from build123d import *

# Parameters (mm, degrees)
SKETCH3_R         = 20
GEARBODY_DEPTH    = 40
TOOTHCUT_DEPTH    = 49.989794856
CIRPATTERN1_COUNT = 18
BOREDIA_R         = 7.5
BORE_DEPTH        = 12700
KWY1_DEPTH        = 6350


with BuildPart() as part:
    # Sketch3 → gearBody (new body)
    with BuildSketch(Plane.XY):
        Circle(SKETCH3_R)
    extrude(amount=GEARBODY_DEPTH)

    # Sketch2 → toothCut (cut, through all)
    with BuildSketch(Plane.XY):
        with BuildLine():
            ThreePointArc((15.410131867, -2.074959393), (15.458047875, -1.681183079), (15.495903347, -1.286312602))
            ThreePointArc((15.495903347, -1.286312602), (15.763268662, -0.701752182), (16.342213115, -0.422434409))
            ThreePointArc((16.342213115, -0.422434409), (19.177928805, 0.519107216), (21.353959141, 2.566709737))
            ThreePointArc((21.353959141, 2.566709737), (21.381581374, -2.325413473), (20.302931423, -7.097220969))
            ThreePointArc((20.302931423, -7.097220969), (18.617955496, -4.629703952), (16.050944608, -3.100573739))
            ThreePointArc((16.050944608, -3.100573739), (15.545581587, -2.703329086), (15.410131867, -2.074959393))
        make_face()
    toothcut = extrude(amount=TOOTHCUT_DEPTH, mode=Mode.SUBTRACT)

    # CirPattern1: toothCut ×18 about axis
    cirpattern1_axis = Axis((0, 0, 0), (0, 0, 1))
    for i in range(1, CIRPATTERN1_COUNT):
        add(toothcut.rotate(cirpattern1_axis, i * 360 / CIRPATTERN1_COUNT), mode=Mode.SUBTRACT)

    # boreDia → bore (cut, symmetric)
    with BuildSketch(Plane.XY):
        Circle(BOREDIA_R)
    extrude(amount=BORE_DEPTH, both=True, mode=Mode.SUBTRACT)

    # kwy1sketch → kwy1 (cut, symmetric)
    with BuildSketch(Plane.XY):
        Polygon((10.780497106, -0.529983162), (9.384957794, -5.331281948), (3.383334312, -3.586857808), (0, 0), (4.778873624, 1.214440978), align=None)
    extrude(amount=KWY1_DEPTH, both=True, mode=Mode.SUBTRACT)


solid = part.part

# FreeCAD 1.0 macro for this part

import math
import FreeCAD as App
import Part
import Sketcher
from FreeCAD import Vector
Q = App.Units.Quantity


def add_polygon(sketch, points):
    """Adds a closed chain of lines whose ends are joined by coincident constraints."""
    first, n = sketch.GeometryCount, len(points)
    for a, b in zip(points, points[1:] + points[:1]):
        sketch.addGeometry(Part.LineSegment(App.Vector(*a, 0), App.Vector(*b, 0)), False)
    for i in range(n):
        sketch.addConstraint(Sketcher.Constraint("Coincident", first + i, 2, first + (i + 1) % n, 1))

doc = App.newDocument("Part")
body = doc.addObject("PartDesign::Body", "Body")

# Sketch on XY plane
sketch1 = body.newObject("Sketcher::SketchObject", "Sketch")
sketch1.AttachmentSupport = (doc.getObject("XY_Plane"), [""])
sketch1.MapMode = "FlatFace"
sketch1.addGeometry(Part.Circle(Vector(0, 0, 0), Vector(0, 0, 1), 20), False)
sketch1.addConstraint([
    Sketcher.Constraint("Coincident", 0, 3, -1, 1),
    Sketcher.Constraint("Diameter", 0, Q("40 mm")),
])
pad1 = body.newObject("PartDesign::Pad", "Pad")
pad1.Profile = sketch1
pad1.Length = 40

# Sketch on XY plane
sketch2 = body.newObject("Sketcher::SketchObject", "Sketch001")
sketch2.AttachmentSupport = (doc.getObject("XY_Plane"), [""])
sketch2.MapMode = "FlatFace"
sketch2.addGeometry([
    Part.ArcOfCircle(Part.Circle(Vector(0, 0, 0), Vector(0, 0, 1), 15.5), math.radians(-7.67), math.radians(-4.75)),  # 0
    Part.ArcOfCircle(Part.Circle(Vector(16.3, -2.2, 0), Vector(0, 0, 1), 0.9), math.radians(172), math.radians(252)),  # 1
    Part.ArcOfCircle(Part.Circle(Vector(13.9, -9.7, 0), Vector(0, 0, 1), 6.9), math.radians(22), math.radians(72)),  # 2
    Part.ArcOfCircle(Part.Circle(Vector(0, 0, 0), Vector(0, 0, 1), 21.5), math.radians(-19), math.radians(7)),  # 3
    Part.ArcOfCircle(Part.Circle(Vector(15.6, 6.5, 0), Vector(0, 0, 1), 6.9), math.radians(-84), math.radians(-34)),  # 4
    Part.ArcOfCircle(Part.Circle(Vector(16.4, -1.4, 0), Vector(0, 0, 1), 0.9), math.radians(96), math.radians(175)),  # 5
], False)
sketch2.addConstraint([
    Sketcher.Constraint("Tangent", 0, 1, 1, 1),
    Sketcher.Constraint("Tangent", 1, 2, 2, 2),
    Sketcher.Constraint("Coincident", 2, 1, 3, 1),
    Sketcher.Constraint("Coincident", 3, 2, 4, 2),
    Sketcher.Constraint("Tangent", 4, 1, 5, 1),
    Sketcher.Constraint("Tangent", 5, 2, 0, 2),
    Sketcher.Constraint("Coincident", 0, 3, -1, 1),
    Sketcher.Constraint("Coincident", 3, 3, -1, 1),
    Sketcher.Constraint("Equal", 2, 4),
    Sketcher.Constraint("Equal", 1, 5),
    Sketcher.Constraint("Radius", 0, Q("15.549199 mm")),
    Sketcher.Constraint("Radius", 1, Q("0.9473 mm")),
    Sketcher.Constraint("Radius", 2, Q("6.932321 mm")),
    Sketcher.Constraint("Radius", 3, Q("21.507663 mm")),
    Sketcher.Constraint("DistanceX", 1, 3, 3, 2, Q("5.005 mm")),
    Sketcher.Constraint("DistanceY", 2, 3, 4, 3, Q("16.153802 mm")),
    Sketcher.Constraint("DistanceX", 0, 1, 4, 3, Q("0.216798 mm")),
    Sketcher.Constraint("DistanceX", 0, 1, 2, 1, Q("4.8928 mm")),
])
pocket1 = body.newObject("PartDesign::Pocket", "Pocket")
pocket1.Profile = sketch2
pocket1.Type = "ThroughAll"
pocket1.Reversed = True
doc.recompute()

polarpattern = body.newObject("PartDesign::PolarPattern", "PolarPattern")
polarpattern.Originals = [pocket1]
polarpattern.Axis = (doc.getObject("Z_Axis"), [""])
polarpattern.Angle = 360
polarpattern.Occurrences = 18
body.Tip = polarpattern

# Sketch on XY plane
sketch3 = body.newObject("Sketcher::SketchObject", "Sketch002")
sketch3.AttachmentSupport = (doc.getObject("XY_Plane"), [""])
sketch3.MapMode = "FlatFace"
sketch3.addGeometry(Part.Circle(Vector(0, 0, 0), Vector(0, 0, 1), 8), False)
sketch3.addConstraint([
    Sketcher.Constraint("Coincident", 0, 3, -1, 1),
    Sketcher.Constraint("Diameter", 0, Q("15 mm")),
])
pocket2 = body.newObject("PartDesign::Pocket", "Pocket001")
pocket2.Profile = sketch3
pocket2.Length = 25400
pocket2.Midplane = True

# Sketch on XY plane
sketch4 = body.newObject("Sketcher::SketchObject", "Sketch003")
sketch4.AttachmentSupport = (doc.getObject("XY_Plane"), [""])
sketch4.MapMode = "FlatFace"
add_polygon(sketch4, [(9.4, -5.3), (10.8, -0.5), (4.8, 1.2), (0, 0), (3.4, -3.6)])  # lines 0-4
sketch4.addConstraint([
    Sketcher.Constraint("Coincident", 2, 2, -1, 1),
    Sketcher.Constraint("Perpendicular", 0, 1),
    Sketcher.Constraint("Parallel", 1, 4),
    Sketcher.Constraint("Equal", 2, 3),
    Sketcher.Constraint("Equal", 1, 4),
    Sketcher.Constraint("Distance", 0, Q("5 mm")),
    Sketcher.Constraint("Distance", 1, Q("6.25 mm")),
    Sketcher.Constraint("DistanceY", 3, 2, 1, 2, Q("4.801299 mm")),
    Sketcher.Constraint("Distance", 2, Q("4.930771 mm")),
])
pocket3 = body.newObject("PartDesign::Pocket", "Pocket002")
pocket3.Profile = sketch4
pocket3.Length = 12700
pocket3.Midplane = True

doc.recompute()
